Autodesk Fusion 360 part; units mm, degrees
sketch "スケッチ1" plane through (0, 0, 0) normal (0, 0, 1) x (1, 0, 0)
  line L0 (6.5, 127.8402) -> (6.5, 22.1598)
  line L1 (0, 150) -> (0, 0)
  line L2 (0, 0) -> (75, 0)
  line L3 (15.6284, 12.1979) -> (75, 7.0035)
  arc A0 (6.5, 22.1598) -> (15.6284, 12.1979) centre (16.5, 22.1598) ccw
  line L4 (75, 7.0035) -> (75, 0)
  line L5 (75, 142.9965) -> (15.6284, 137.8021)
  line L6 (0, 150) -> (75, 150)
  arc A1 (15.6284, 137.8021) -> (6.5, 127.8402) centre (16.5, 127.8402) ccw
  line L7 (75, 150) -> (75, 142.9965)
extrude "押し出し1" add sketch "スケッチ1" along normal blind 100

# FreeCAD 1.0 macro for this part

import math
import FreeCAD as App
import Part
import Sketcher
Q = App.Units.Quantity

doc = App.newDocument("Part")
body = doc.addObject("PartDesign::Body", "Body")

sketch1 = body.newObject("Sketcher::SketchObject", "Sketch")
sketch1.AttachmentSupport = (doc.getObject("XY_Plane"), [""])
sketch1.MapMode = "FlatFace"
sketch1.addGeometry([
    Part.LineSegment(App.Vector(6.5, 22.1598, 0), App.Vector(6.5, 127.8402, 0)),
    Part.ArcOfCircle(Part.Circle(App.Vector(16.5, 127.8402, 0), App.Vector(0, 0, 1), 9.999957), math.radians(95.000266), math.radians(180)),
    Part.LineSegment(App.Vector(15.6284, 137.8021, 0), App.Vector(75, 142.9965, 0)),
    Part.LineSegment(App.Vector(75, 142.9965, 0), App.Vector(75, 150, 0)),
    Part.LineSegment(App.Vector(75, 150, 0), App.Vector(0, 150, 0)),
    Part.LineSegment(App.Vector(0, 150, 0), App.Vector(0, 0, 0)),
    Part.LineSegment(App.Vector(0, 0, 0), App.Vector(75, 0, 0)),
    Part.LineSegment(App.Vector(75, 0, 0), App.Vector(75, 7.0035, 0)),
    Part.LineSegment(App.Vector(75, 7.0035, 0), App.Vector(15.6284, 12.1979, 0)),
    Part.ArcOfCircle(Part.Circle(App.Vector(16.5, 22.1598, 0), App.Vector(0, 0, 1), 10), math.radians(180), math.radians(264.999734)),
], False)
sketch1.addConstraint([
    Sketcher.Constraint("Tangent", 0, 2, 1, 2),
    Sketcher.Constraint("Tangent", 1, 1, 2, 1),
    Sketcher.Constraint("Coincident", 2, 2, 3, 1),
    Sketcher.Constraint("Coincident", 3, 2, 4, 1),
    Sketcher.Constraint("Coincident", 4, 2, 5, 1),
    Sketcher.Constraint("Coincident", 5, 2, 6, 1),
    Sketcher.Constraint("Coincident", 6, 2, 7, 1),
    Sketcher.Constraint("Coincident", 7, 2, 8, 1),
    Sketcher.Constraint("Tangent", 8, 2, 9, 2),
    Sketcher.Constraint("Tangent", 9, 1, 0, 1),
    Sketcher.Constraint("Vertical", 0),
    Sketcher.Constraint("Vertical", 3),
    Sketcher.Constraint("Horizontal", 4),
    Sketcher.Constraint("Vertical", 5),
    Sketcher.Constraint("Horizontal", 6),
    Sketcher.Constraint("Vertical", 7),
    Sketcher.Constraint("Coincident", 5, 2, -1, 1),
    Sketcher.Constraint("Equal", 1, 9),
    Sketcher.Constraint("Vertical", 3, 2, 6, 2),
    Sketcher.Constraint("Vertical", 1, 1, 8, 2),
    Sketcher.Constraint("Equal", 3, 7),
    Sketcher.Constraint("Radius", 1, 10.0),
    Sketcher.Constraint("DistanceX", 4, 2, 4, 1, 75.0),
    Sketcher.Constraint("DistanceY", 5, 2, 5, 1, 150.0),
    Sketcher.Constraint("Angle", 2, Q("5 deg")),
    Sketcher.Constraint("DistanceX", -1, 1, 1, 3, 16.5),
    Sketcher.Constraint("DistanceY", 0, 1, 0, 2, 105.6804),
])
pad1 = body.newObject("PartDesign::Pad", "Pad")
pad1.Profile = sketch1
pad1.Length = 100

doc.recompute()
